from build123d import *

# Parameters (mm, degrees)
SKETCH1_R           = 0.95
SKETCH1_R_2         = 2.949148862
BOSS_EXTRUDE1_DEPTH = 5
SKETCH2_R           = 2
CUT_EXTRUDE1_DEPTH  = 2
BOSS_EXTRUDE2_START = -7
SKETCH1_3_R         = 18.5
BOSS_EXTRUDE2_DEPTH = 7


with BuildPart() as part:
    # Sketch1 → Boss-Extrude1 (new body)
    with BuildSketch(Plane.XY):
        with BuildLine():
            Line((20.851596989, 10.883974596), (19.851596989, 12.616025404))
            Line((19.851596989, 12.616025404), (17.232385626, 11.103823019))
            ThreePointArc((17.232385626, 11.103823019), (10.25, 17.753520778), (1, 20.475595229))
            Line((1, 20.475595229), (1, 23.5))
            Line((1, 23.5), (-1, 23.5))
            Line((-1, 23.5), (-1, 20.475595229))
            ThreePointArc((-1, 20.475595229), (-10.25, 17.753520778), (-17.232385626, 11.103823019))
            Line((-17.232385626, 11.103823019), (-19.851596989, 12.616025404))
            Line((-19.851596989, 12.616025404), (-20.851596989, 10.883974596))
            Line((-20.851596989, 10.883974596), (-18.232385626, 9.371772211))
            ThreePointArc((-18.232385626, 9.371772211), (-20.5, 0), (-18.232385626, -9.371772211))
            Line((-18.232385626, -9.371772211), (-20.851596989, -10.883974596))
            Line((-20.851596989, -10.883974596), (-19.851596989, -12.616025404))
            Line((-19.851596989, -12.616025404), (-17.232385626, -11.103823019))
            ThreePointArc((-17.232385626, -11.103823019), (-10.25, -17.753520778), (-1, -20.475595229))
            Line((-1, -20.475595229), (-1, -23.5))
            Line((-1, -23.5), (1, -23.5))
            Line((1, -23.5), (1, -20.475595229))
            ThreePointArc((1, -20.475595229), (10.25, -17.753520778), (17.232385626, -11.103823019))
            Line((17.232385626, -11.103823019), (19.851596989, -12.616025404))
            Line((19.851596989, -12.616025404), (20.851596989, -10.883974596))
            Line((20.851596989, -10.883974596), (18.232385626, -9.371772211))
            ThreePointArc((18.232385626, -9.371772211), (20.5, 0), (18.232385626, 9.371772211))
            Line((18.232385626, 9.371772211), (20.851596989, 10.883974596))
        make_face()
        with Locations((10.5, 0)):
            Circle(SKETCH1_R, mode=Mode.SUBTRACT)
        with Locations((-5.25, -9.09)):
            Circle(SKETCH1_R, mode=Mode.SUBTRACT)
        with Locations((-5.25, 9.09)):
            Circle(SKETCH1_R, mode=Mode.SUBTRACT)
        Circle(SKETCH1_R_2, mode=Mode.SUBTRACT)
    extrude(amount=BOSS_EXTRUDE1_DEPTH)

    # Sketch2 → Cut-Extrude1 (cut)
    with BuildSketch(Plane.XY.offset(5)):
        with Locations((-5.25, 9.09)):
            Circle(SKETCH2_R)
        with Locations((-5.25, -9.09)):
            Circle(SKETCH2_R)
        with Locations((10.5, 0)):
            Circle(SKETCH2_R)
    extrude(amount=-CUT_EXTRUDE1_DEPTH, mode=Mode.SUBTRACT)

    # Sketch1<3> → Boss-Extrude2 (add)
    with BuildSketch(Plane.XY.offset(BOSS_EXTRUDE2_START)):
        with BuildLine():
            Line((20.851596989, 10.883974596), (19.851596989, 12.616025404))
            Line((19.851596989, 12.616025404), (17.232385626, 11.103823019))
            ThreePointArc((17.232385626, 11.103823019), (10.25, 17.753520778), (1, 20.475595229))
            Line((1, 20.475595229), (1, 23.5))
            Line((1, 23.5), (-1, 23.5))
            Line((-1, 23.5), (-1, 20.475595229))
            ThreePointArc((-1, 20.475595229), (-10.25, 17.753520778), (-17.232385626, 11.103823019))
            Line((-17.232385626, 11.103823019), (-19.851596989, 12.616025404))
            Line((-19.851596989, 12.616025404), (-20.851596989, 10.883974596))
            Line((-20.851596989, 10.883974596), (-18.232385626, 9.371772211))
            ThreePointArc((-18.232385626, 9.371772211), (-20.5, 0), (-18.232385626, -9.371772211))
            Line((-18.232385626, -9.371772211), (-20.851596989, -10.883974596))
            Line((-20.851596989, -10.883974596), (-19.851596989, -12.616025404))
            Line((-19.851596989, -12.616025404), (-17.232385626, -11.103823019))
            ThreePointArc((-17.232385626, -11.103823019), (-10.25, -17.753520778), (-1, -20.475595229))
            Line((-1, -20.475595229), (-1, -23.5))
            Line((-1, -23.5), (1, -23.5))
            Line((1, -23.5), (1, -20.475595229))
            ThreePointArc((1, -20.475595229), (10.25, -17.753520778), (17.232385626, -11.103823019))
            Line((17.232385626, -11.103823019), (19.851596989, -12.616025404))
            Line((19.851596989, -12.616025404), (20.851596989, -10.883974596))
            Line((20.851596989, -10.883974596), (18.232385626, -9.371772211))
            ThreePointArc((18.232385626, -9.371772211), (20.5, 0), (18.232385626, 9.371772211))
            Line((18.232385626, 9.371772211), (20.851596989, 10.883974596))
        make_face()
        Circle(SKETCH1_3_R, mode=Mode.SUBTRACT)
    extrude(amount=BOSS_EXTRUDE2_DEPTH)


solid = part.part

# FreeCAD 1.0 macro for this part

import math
import FreeCAD as App
import Part
import Sketcher

V = App.Vector
Q = App.Units.Quantity

doc = App.newDocument("Part")
body = doc.addObject("PartDesign::Body", "Body")

# Sketch on XY plane
sketch1 = body.newObject("Sketcher::SketchObject", "Sketch")
sketch1.AttachmentSupport = (doc.getObject("XY_Plane"), [""])
sketch1.MapMode = "FlatFace"
sketch1.addGeometry([
    Part.LineSegment(V(20.851597, 10.883975, 0), V(19.851597, 12.616025, 0)),  # 0
    Part.LineSegment(V(19.851597, 12.616025, 0), V(17.232386, 11.103823, 0)),  # 1
    Part.ArcOfCircle(Part.Circle(V(0, 0, 0), V(0, 0, 1), 20.5), math.radians(32.796026), math.radians(87.203974)),  # 2
    Part.LineSegment(V(1, 20.475595, 0), V(1, 23.5, 0)),  # 3
    Part.LineSegment(V(1, 23.5, 0), V(-1, 23.5, 0)),  # 4
    Part.LineSegment(V(-1, 23.5, 0), V(-1, 20.475595, 0)),  # 5
    Part.ArcOfCircle(Part.Circle(V(0, 0, 0), V(0, 0, 1), 20.5), math.radians(92.796026), math.radians(147.203974)),  # 6
    Part.LineSegment(V(-17.232386, 11.103823, 0), V(-19.851597, 12.616025, 0)),  # 7
    Part.LineSegment(V(-19.851597, 12.616025, 0), V(-20.851597, 10.883975, 0)),  # 8
    Part.LineSegment(V(-20.851597, 10.883975, 0), V(-18.232386, 9.371772, 0)),  # 9
    Part.ArcOfCircle(Part.Circle(V(0, 0, 0), V(0, 0, 1), 20.5), math.radians(152.796026), math.radians(207.203974)),  # 10
    Part.LineSegment(V(-18.232386, -9.371772, 0), V(-20.851597, -10.883975, 0)),  # 11
    Part.LineSegment(V(-20.851597, -10.883975, 0), V(-19.851597, -12.616025, 0)),  # 12
    Part.LineSegment(V(-19.851597, -12.616025, 0), V(-17.232386, -11.103823, 0)),  # 13
    Part.ArcOfCircle(Part.Circle(V(0, 0, 0), V(0, 0, 1), 20.5), math.radians(-147.203974), math.radians(-92.796026)),  # 14
    Part.LineSegment(V(-1, -20.475595, 0), V(-1, -23.5, 0)),  # 15
    Part.LineSegment(V(-1, -23.5, 0), V(1, -23.5, 0)),  # 16
    Part.LineSegment(V(1, -23.5, 0), V(1, -20.475595, 0)),  # 17
    Part.ArcOfCircle(Part.Circle(V(0, 0, 0), V(0, 0, 1), 20.5), math.radians(-87.203974), math.radians(-32.796026)),  # 18
    Part.LineSegment(V(17.232386, -11.103823, 0), V(19.851597, -12.616025, 0)),  # 19
    Part.LineSegment(V(19.851597, -12.616025, 0), V(20.851597, -10.883975, 0)),  # 20
    Part.LineSegment(V(20.851597, -10.883975, 0), V(18.232386, -9.371772, 0)),  # 21
    Part.ArcOfCircle(Part.Circle(V(0, 0, 0), V(0, 0, 1), 20.5), math.radians(-27.203974), math.radians(27.203974)),  # 22
    Part.LineSegment(V(18.232386, 9.371772, 0), V(20.851597, 10.883975, 0)),  # 23
    Part.Circle(V(-5.25, -9.09, 0), V(0, 0, 1), 0.95),  # 24
    Part.Circle(V(0, 0, 0), V(0, 0, 1), 2.949149),  # 25
    Part.Circle(V(-5.25, 9.09, 0), V(0, 0, 1), 0.95),  # 26
    Part.Circle(V(10.5, 0, 0), V(0, 0, 1), 0.95),  # 27
], False)
sketch1.addConstraint([
    Sketcher.Constraint("Coincident", 0, 2, 1, 1),
    Sketcher.Constraint("Coincident", 1, 2, 2, 1),
    Sketcher.Constraint("Coincident", 2, 2, 3, 1),
    Sketcher.Constraint("Coincident", 3, 2, 4, 1),
    Sketcher.Constraint("Coincident", 4, 2, 5, 1),
    Sketcher.Constraint("Coincident", 5, 2, 6, 1),
    Sketcher.Constraint("Coincident", 6, 2, 7, 1),
    Sketcher.Constraint("Coincident", 7, 2, 8, 1),
    Sketcher.Constraint("Coincident", 8, 2, 9, 1),
    Sketcher.Constraint("Coincident", 9, 2, 10, 1),
    Sketcher.Constraint("Coincident", 10, 2, 11, 1),
    Sketcher.Constraint("Coincident", 11, 2, 12, 1),
    Sketcher.Constraint("Coincident", 12, 2, 13, 1),
    Sketcher.Constraint("Coincident", 13, 2, 14, 1),
    Sketcher.Constraint("Coincident", 14, 2, 15, 1),
    Sketcher.Constraint("Coincident", 15, 2, 16, 1),
    Sketcher.Constraint("Coincident", 16, 2, 17, 1),
    Sketcher.Constraint("Coincident", 17, 2, 18, 1),
    Sketcher.Constraint("Coincident", 18, 2, 19, 1),
    Sketcher.Constraint("Coincident", 19, 2, 20, 1),
    Sketcher.Constraint("Coincident", 20, 2, 21, 1),
    Sketcher.Constraint("Coincident", 21, 2, 22, 1),
    Sketcher.Constraint("Coincident", 22, 2, 23, 1),
    Sketcher.Constraint("Coincident", 23, 2, 0, 1),
    Sketcher.Constraint("Vertical", 3),
    Sketcher.Constraint("Horizontal", 4),
    Sketcher.Constraint("Vertical", 5),
    Sketcher.Constraint("Vertical", 15),
    Sketcher.Constraint("Horizontal", 16),
    Sketcher.Constraint("Vertical", 17),
    Sketcher.Constraint("Coincident", 2, 3, -1, 1),
    Sketcher.Constraint("Coincident", 6, 3, -1, 1),
    Sketcher.Constraint("Coincident", 10, 3, -1, 1),
    Sketcher.Constraint("Coincident", 14, 3, -1, 1),
    Sketcher.Constraint("Coincident", 18, 3, -1, 1),
    Sketcher.Constraint("Coincident", 22, 3, -1, 1),
    Sketcher.Constraint("Coincident", 25, 3, -1, 1),
    Sketcher.Constraint("Equal", 2, 6),
    Sketcher.Constraint("Equal", 6, 10),
    Sketcher.Constraint("Equal", 10, 14),
    Sketcher.Constraint("Equal", 14, 18),
    Sketcher.Constraint("Equal", 18, 22),
    Sketcher.Constraint("Equal", 24, 26),
    Sketcher.Constraint("Equal", 26, 27),
    Sketcher.Constraint("Symmetric", 0, 2, 12, 2, -1, 1),
    Sketcher.Constraint("Symmetric", 3, 2, 15, 2, -1, 1),
    Sketcher.Constraint("Symmetric", 7, 2, 19, 2, -1, 1),
    Sketcher.Constraint("Symmetric", 8, 2, 20, 2, -1, 1),
    Sketcher.Constraint("Symmetric", 11, 2, 23, 2, -1, 1),
    Sketcher.Constraint("Symmetric", 0, 2, 7, 2, -2),
    Sketcher.Constraint("Symmetric", 11, 2, 20, 2, -2),
    Sketcher.Constraint("Symmetric", 24, 3, 26, 3, -1),
    Sketcher.Constraint("PointOnObject", 27, 3, -1),
    Sketcher.Constraint("Perpendicular", 0, 1),
    Sketcher.Constraint("Perpendicular", 7, 8),
    Sketcher.Constraint("Perpendicular", 8, 9),
    Sketcher.Constraint("Parallel", 1, 11),
    Sketcher.Constraint("Perpendicular", 12, 13),
    Sketcher.Constraint("Parallel", 9, 19),
    Sketcher.Constraint("Perpendicular", 20, 21),
    Sketcher.Constraint("Parallel", 13, 23),
    Sketcher.Constraint("Horizontal", 2, 2, 5, 2),
    Sketcher.Constraint("Horizontal", 14, 2, 17, 2),
    Sketcher.Constraint("Equal", 7, 9),
    Sketcher.Constraint("Diameter", 24, 1.9),
    Sketcher.Constraint("Radius", 2, 20.5),
    Sketcher.Constraint("DistanceX", 4, 2, 4, 1, 2.0),
    Sketcher.Constraint("Angle", 0, Q("120 deg")),
    Sketcher.Constraint("Distance", 0, 2.0),
    Sketcher.Constraint("DistanceX", -1, 1, 27, 3, 10.5),
    Sketcher.Constraint("DistanceY", -1, 1, 3, 2, 23.5),
    Sketcher.Constraint("DistanceX", 24, 3, -1, 1, 5.25),
    Sketcher.Constraint("DistanceY", 24, 3, -1, 1, 9.09),
    Sketcher.Constraint("Diameter", 25, 5.898298),
    Sketcher.Constraint("DistanceX", 1, 2, 0, 2, 2.619211),
])
pad1 = body.newObject("PartDesign::Pad", "Pad")
pad1.Profile = sketch1
pad1.Length = 5

# Sketch on XY plane
sketch2 = body.newObject("Sketcher::SketchObject", "Sketch001")
sketch2.AttachmentSupport = (doc.getObject("XY_Plane"), [""])
sketch2.MapMode = "FlatFace"
sketch2.AttachmentOffset = App.Placement(V(0, 0, 5), App.Rotation())
sketch2.addGeometry([
    Part.Circle(V(-5.25, 9.09, 0), V(0, 0, 1), 2),
    Part.Circle(V(-5.25, -9.09, 0), V(0, 0, 1), 2),
    Part.Circle(V(10.5, 0, 0), V(0, 0, 1), 2),
], False)
sketch2.addConstraint([
    Sketcher.Constraint("Equal", 0, 1),
    Sketcher.Constraint("Equal", 1, 2),
    Sketcher.Constraint("Symmetric", 0, 3, 1, 3, -1),
    Sketcher.Constraint("PointOnObject", 2, 3, -1),
    Sketcher.Constraint("Diameter", 0, 4.0),
    Sketcher.Constraint("DistanceX", -1, 1, 2, 3, 10.5),
    Sketcher.Constraint("DistanceX", 0, 3, -1, 1, 5.25),
    Sketcher.Constraint("DistanceY", -1, 1, 0, 3, 9.09),
])
pocket1 = body.newObject("PartDesign::Pocket", "Pocket")
pocket1.Profile = sketch2
pocket1.Length = 2

# Sketch on XY plane
sketch3 = body.newObject("Sketcher::SketchObject", "Sketch002")
sketch3.AttachmentSupport = (doc.getObject("XY_Plane"), [""])
sketch3.MapMode = "FlatFace"
sketch3.AttachmentOffset = App.Placement(V(0, 0, -7), App.Rotation())
sketch3.addGeometry([
    Part.LineSegment(V(20.851597, 10.883975, 0), V(19.851597, 12.616025, 0)),  # 0
    Part.LineSegment(V(19.851597, 12.616025, 0), V(17.232386, 11.103823, 0)),  # 1
    Part.ArcOfCircle(Part.Circle(V(0, 0, 0), V(0, 0, 1), 20.5), math.radians(32.796026), math.radians(87.203974)),  # 2
    Part.LineSegment(V(1, 20.475595, 0), V(1, 23.5, 0)),  # 3
    Part.LineSegment(V(1, 23.5, 0), V(-1, 23.5, 0)),  # 4
    Part.LineSegment(V(-1, 23.5, 0), V(-1, 20.475595, 0)),  # 5
    Part.ArcOfCircle(Part.Circle(V(0, 0, 0), V(0, 0, 1), 20.5), math.radians(92.796026), math.radians(147.203974)),  # 6
    Part.LineSegment(V(-17.232386, 11.103823, 0), V(-19.851597, 12.616025, 0)),  # 7
    Part.LineSegment(V(-19.851597, 12.616025, 0), V(-20.851597, 10.883975, 0)),  # 8
    Part.LineSegment(V(-20.851597, 10.883975, 0), V(-18.232386, 9.371772, 0)),  # 9
    Part.ArcOfCircle(Part.Circle(V(0, 0, 0), V(0, 0, 1), 20.5), math.radians(152.796026), math.radians(207.203974)),  # 10
    Part.LineSegment(V(-18.232386, -9.371772, 0), V(-20.851597, -10.883975, 0)),  # 11
    Part.LineSegment(V(-20.851597, -10.883975, 0), V(-19.851597, -12.616025, 0)),  # 12
    Part.LineSegment(V(-19.851597, -12.616025, 0), V(-17.232386, -11.103823, 0)),  # 13
    Part.ArcOfCircle(Part.Circle(V(0, 0, 0), V(0, 0, 1), 20.5), math.radians(-147.203974), math.radians(-92.796026)),  # 14
    Part.LineSegment(V(-1, -20.475595, 0), V(-1, -23.5, 0)),  # 15
    Part.LineSegment(V(-1, -23.5, 0), V(1, -23.5, 0)),  # 16
    Part.LineSegment(V(1, -23.5, 0), V(1, -20.475595, 0)),  # 17
    Part.ArcOfCircle(Part.Circle(V(0, 0, 0), V(0, 0, 1), 20.5), math.radians(-87.203974), math.radians(-32.796026)),  # 18
    Part.LineSegment(V(17.232386, -11.103823, 0), V(19.851597, -12.616025, 0)),  # 19
    Part.LineSegment(V(19.851597, -12.616025, 0), V(20.851597, -10.883975, 0)),  # 20
    Part.LineSegment(V(20.851597, -10.883975, 0), V(18.232386, -9.371772, 0)),  # 21
    Part.ArcOfCircle(Part.Circle(V(0, 0, 0), V(0, 0, 1), 20.5), math.radians(-27.203974), math.radians(27.203974)),  # 22
    Part.LineSegment(V(18.232386, 9.371772, 0), V(20.851597, 10.883975, 0)),  # 23
    Part.Circle(V(0, 0, 0), V(0, 0, 1), 18.5),  # 24
], False)
sketch3.addConstraint([
    Sketcher.Constraint("Coincident", 0, 2, 1, 1),
    Sketcher.Constraint("Coincident", 1, 2, 2, 1),
    Sketcher.Constraint("Coincident", 2, 2, 3, 1),
    Sketcher.Constraint("Coincident", 3, 2, 4, 1),
    Sketcher.Constraint("Coincident", 4, 2, 5, 1),
    Sketcher.Constraint("Coincident", 5, 2, 6, 1),
    Sketcher.Constraint("Coincident", 6, 2, 7, 1),
    Sketcher.Constraint("Coincident", 7, 2, 8, 1),
    Sketcher.Constraint("Coincident", 8, 2, 9, 1),
    Sketcher.Constraint("Coincident", 9, 2, 10, 1),
    Sketcher.Constraint("Coincident", 10, 2, 11, 1),
    Sketcher.Constraint("Coincident", 11, 2, 12, 1),
    Sketcher.Constraint("Coincident", 12, 2, 13, 1),
    Sketcher.Constraint("Coincident", 13, 2, 14, 1),
    Sketcher.Constraint("Coincident", 14, 2, 15, 1),
    Sketcher.Constraint("Coincident", 15, 2, 16, 1),
    Sketcher.Constraint("Coincident", 16, 2, 17, 1),
    Sketcher.Constraint("Coincident", 17, 2, 18, 1),
    Sketcher.Constraint("Coincident", 18, 2, 19, 1),
    Sketcher.Constraint("Coincident", 19, 2, 20, 1),
    Sketcher.Constraint("Coincident", 20, 2, 21, 1),
    Sketcher.Constraint("Coincident", 21, 2, 22, 1),
    Sketcher.Constraint("Coincident", 22, 2, 23, 1),
    Sketcher.Constraint("Coincident", 23, 2, 0, 1),
    Sketcher.Constraint("Vertical", 3),
    Sketcher.Constraint("Horizontal", 4),
    Sketcher.Constraint("Vertical", 5),
    Sketcher.Constraint("Vertical", 15),
    Sketcher.Constraint("Horizontal", 16),
    Sketcher.Constraint("Vertical", 17),
    Sketcher.Constraint("Coincident", 2, 3, -1, 1),
    Sketcher.Constraint("Coincident", 6, 3, -1, 1),
    Sketcher.Constraint("Coincident", 10, 3, -1, 1),
    Sketcher.Constraint("Coincident", 14, 3, -1, 1),
    Sketcher.Constraint("Coincident", 18, 3, -1, 1),
    Sketcher.Constraint("Coincident", 22, 3, -1, 1),
    Sketcher.Constraint("Coincident", 24, 3, -1, 1),
    Sketcher.Constraint("Equal", 2, 6),
    Sketcher.Constraint("Equal", 6, 10),
    Sketcher.Constraint("Equal", 10, 14),
    Sketcher.Constraint("Equal", 14, 18),
    Sketcher.Constraint("Equal", 18, 22),
    Sketcher.Constraint("Symmetric", 0, 2, 12, 2, -1, 1),
    Sketcher.Constraint("Symmetric", 3, 2, 15, 2, -1, 1),
    Sketcher.Constraint("Symmetric", 7, 2, 19, 2, -1, 1),
    Sketcher.Constraint("Symmetric", 8, 2, 20, 2, -1, 1),
    Sketcher.Constraint("Symmetric", 11, 2, 23, 2, -1, 1),
    Sketcher.Constraint("Symmetric", 0, 2, 7, 2, -2),
    Sketcher.Constraint("Symmetric", 11, 2, 20, 2, -2),
    Sketcher.Constraint("Perpendicular", 0, 1),
    Sketcher.Constraint("Perpendicular", 7, 8),
    Sketcher.Constraint("Perpendicular", 8, 9),
    Sketcher.Constraint("Parallel", 1, 11),
    Sketcher.Constraint("Perpendicular", 12, 13),
    Sketcher.Constraint("Parallel", 9, 19),
    Sketcher.Constraint("Perpendicular", 20, 21),
    Sketcher.Constraint("Parallel", 13, 23),
    Sketcher.Constraint("Horizontal", 2, 2, 5, 2),
    Sketcher.Constraint("Horizontal", 14, 2, 17, 2),
    Sketcher.Constraint("Equal", 7, 9),
    Sketcher.Constraint("Diameter", 24, 37.0),
    Sketcher.Constraint("Radius", 2, 20.5),
    Sketcher.Constraint("DistanceX", 4, 2, 4, 1, 2.0),
    Sketcher.Constraint("Angle", 0, Q("120 deg")),
    Sketcher.Constraint("Distance", 0, 2.0),
    Sketcher.Constraint("DistanceY", -1, 1, 3, 2, 23.5),
    Sketcher.Constraint("DistanceX", 1, 2, 0, 2, 2.619211),
])
pad2 = body.newObject("PartDesign::Pad", "Pad001")
pad2.Profile = sketch3
pad2.Length = 7

doc.recompute()
